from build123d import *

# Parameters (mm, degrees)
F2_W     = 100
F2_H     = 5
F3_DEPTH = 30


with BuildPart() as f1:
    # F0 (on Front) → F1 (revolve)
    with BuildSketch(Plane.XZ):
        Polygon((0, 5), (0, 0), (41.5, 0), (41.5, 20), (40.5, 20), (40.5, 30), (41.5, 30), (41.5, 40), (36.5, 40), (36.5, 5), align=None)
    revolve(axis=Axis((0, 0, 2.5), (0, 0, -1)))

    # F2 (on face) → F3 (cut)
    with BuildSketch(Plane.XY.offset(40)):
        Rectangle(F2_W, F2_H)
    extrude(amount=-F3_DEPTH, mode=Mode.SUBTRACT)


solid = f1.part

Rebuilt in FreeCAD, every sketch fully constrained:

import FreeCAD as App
import Part
import Sketcher

V = App.Vector
Q = App.Units.Quantity

doc = App.newDocument("Part")
body = doc.addObject("PartDesign::Body", "Body")

sketch1 = doc.addObject("Sketcher::SketchObject", "Sketch")
body.addObject(sketch1)
sketch1.AttachmentSupport = (doc.XZ_Plane, [""])
sketch1.MapMode = "FlatFace"
sketch1.addGeometry(Part.LineSegment(V(0, 5, 0), V(0, 0, 0)), False)
sketch1.addGeometry(Part.LineSegment(V(0, 0, 0), V(41.5, 0, 0)), False)
sketch1.addGeometry(Part.LineSegment(V(41.5, 0, 0), V(41.5, 20, 0)), False)
sketch1.addGeometry(Part.LineSegment(V(41.5, 20, 0), V(40.5, 20, 0)), False)
sketch1.addGeometry(Part.LineSegment(V(40.5, 20, 0), V(40.5, 30, 0)), False)
sketch1.addGeometry(Part.LineSegment(V(40.5, 30, 0), V(41.5, 30, 0)), False)
sketch1.addGeometry(Part.LineSegment(V(41.5, 30, 0), V(41.5, 40, 0)), False)
sketch1.addGeometry(Part.LineSegment(V(41.5, 40, 0), V(36.5, 40, 0)), False)
sketch1.addGeometry(Part.LineSegment(V(36.5, 40, 0), V(36.5, 5, 0)), False)
sketch1.addGeometry(Part.LineSegment(V(36.5, 5, 0), V(0, 5, 0)), False)
sketch1.addConstraint(Sketcher.Constraint("Coincident", 0, 2, 1, 1))
sketch1.addConstraint(Sketcher.Constraint("Coincident", 1, 2, 2, 1))
sketch1.addConstraint(Sketcher.Constraint("Coincident", 2, 2, 3, 1))
sketch1.addConstraint(Sketcher.Constraint("Coincident", 3, 2, 4, 1))
sketch1.addConstraint(Sketcher.Constraint("Coincident", 4, 2, 5, 1))
sketch1.addConstraint(Sketcher.Constraint("Coincident", 5, 2, 6, 1))
sketch1.addConstraint(Sketcher.Constraint("Coincident", 6, 2, 7, 1))
sketch1.addConstraint(Sketcher.Constraint("Coincident", 7, 2, 8, 1))
sketch1.addConstraint(Sketcher.Constraint("Coincident", 8, 2, 9, 1))
sketch1.addConstraint(Sketcher.Constraint("Coincident", 9, 2, 0, 1))
sketch1.addConstraint(Sketcher.Constraint("Vertical", 0))
sketch1.addConstraint(Sketcher.Constraint("Horizontal", 1))
sketch1.addConstraint(Sketcher.Constraint("Vertical", 2))
sketch1.addConstraint(Sketcher.Constraint("Horizontal", 3))
sketch1.addConstraint(Sketcher.Constraint("Vertical", 4))
sketch1.addConstraint(Sketcher.Constraint("Horizontal", 5))
sketch1.addConstraint(Sketcher.Constraint("Vertical", 6))
sketch1.addConstraint(Sketcher.Constraint("Horizontal", 7))
sketch1.addConstraint(Sketcher.Constraint("Vertical", 8))
sketch1.addConstraint(Sketcher.Constraint("Horizontal", 9))
sketch1.addConstraint(Sketcher.Constraint("Coincident", 0, 2, -1, 1))
sketch1.addConstraint(Sketcher.Constraint("Vertical", 2, 2, 5, 2))
sketch1.addConstraint(Sketcher.Constraint("Equal", 7, 0))
sketch1.addConstraint(Sketcher.Constraint("Equal", 4, 6))
sketch1.addConstraint(Sketcher.Constraint("DistanceX", 3, 2, 3, 1, Q("1 mm")))
sketch1.addConstraint(Sketcher.Constraint("DistanceX", 7, 2, 7, 1, Q("5 mm")))
sketch1.addConstraint(Sketcher.Constraint("DistanceY", 2, 1, 2, 2, Q("20 mm")))
sketch1.addConstraint(Sketcher.Constraint("DistanceY", 4, 1, 4, 2, Q("10 mm")))
sketch1.addConstraint(Sketcher.Constraint("DistanceX", 1, 1, 1, 2, Q("41.5 mm")))
revolution = doc.addObject("PartDesign::Revolution", "Revolution")
body.addObject(revolution)
revolution.Profile = sketch1
revolution.ReferenceAxis = (sketch1, ["V_Axis"])
revolution.Angle = 360

sketch2 = doc.addObject("Sketcher::SketchObject", "Sketch001")
body.addObject(sketch2)
sketch2.AttachmentSupport = (doc.XY_Plane, [""])
sketch2.MapMode = "FlatFace"
sketch2.AttachmentOffset = App.Placement(V(0, 0, 40), App.Rotation())
sketch2.addGeometry(Part.LineSegment(V(-50, 2, 0), V(-50, -2, 0)), False)
sketch2.addGeometry(Part.LineSegment(V(-50, -2, 0), V(50, -2, 0)), False)
sketch2.addGeometry(Part.LineSegment(V(50, -2, 0), V(50, 2, 0)), False)
sketch2.addGeometry(Part.LineSegment(V(50, 2, 0), V(-50, 2, 0)), False)
sketch2.addConstraint(Sketcher.Constraint("Coincident", 0, 2, 1, 1))
sketch2.addConstraint(Sketcher.Constraint("Coincident", 1, 2, 2, 1))
sketch2.addConstraint(Sketcher.Constraint("Coincident", 2, 2, 3, 1))
sketch2.addConstraint(Sketcher.Constraint("Coincident", 3, 2, 0, 1))
sketch2.addConstraint(Sketcher.Constraint("Vertical", 0))
sketch2.addConstraint(Sketcher.Constraint("Horizontal", 1))
sketch2.addConstraint(Sketcher.Constraint("Vertical", 2))
sketch2.addConstraint(Sketcher.Constraint("Horizontal", 3))
sketch2.addConstraint(Sketcher.Constraint("Symmetric", 0, 2, 2, 2, -1, 1))
sketch2.addConstraint(Sketcher.Constraint("DistanceX", 1, 1, 1, 2, Q("100 mm")))
sketch2.addConstraint(Sketcher.Constraint("DistanceY", 0, 2, 0, 1, Q("5 mm")))
pocket1 = doc.addObject("PartDesign::Pocket", "Pocket")
body.addObject(pocket1)
pocket1.Profile = sketch2
pocket1.Length = 30

doc.recompute()
